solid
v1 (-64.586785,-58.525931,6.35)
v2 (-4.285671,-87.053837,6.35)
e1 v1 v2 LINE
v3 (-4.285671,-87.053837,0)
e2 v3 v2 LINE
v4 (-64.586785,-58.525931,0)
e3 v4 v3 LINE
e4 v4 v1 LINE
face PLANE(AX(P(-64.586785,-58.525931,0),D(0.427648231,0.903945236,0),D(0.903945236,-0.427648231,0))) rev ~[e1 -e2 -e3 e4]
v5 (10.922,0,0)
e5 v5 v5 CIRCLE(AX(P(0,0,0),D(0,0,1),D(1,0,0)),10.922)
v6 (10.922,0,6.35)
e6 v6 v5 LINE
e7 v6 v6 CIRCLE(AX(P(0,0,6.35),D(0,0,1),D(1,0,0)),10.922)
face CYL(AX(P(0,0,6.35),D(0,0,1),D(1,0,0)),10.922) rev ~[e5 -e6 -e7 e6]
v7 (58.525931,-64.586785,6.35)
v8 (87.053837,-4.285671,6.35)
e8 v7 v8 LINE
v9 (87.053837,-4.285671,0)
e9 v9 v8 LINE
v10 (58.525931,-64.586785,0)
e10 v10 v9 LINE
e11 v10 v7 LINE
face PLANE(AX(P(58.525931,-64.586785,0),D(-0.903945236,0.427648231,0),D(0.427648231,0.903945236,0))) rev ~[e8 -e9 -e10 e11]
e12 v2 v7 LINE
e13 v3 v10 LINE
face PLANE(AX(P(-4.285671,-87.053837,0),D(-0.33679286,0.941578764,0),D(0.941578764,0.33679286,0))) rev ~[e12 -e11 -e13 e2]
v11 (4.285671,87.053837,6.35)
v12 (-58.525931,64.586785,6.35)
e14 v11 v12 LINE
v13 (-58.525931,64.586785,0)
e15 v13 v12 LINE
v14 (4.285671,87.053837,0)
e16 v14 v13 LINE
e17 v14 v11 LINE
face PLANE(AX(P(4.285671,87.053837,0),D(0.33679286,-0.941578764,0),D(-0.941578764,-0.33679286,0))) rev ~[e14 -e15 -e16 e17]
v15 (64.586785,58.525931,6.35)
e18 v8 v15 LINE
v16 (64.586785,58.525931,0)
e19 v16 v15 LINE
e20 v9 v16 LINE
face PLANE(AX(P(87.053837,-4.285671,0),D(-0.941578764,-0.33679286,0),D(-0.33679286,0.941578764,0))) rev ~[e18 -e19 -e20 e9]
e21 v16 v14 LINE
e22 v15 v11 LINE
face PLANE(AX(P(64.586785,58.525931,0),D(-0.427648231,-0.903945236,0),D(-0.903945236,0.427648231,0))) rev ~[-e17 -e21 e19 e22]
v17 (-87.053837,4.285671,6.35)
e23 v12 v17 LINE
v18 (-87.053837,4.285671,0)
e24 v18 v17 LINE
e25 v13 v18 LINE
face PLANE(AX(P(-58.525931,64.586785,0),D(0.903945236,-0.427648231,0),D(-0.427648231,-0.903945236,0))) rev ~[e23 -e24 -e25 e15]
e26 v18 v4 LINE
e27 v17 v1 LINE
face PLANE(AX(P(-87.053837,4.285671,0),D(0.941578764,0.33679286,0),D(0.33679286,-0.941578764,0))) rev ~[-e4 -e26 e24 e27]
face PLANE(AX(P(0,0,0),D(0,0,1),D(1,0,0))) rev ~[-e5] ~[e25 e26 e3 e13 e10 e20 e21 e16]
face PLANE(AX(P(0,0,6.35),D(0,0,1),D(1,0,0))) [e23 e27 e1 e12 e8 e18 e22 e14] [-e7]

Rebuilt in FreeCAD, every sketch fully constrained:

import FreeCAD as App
import Part
import Sketcher
from FreeCAD import Vector
Q = App.Units.Quantity


def add_polygon(sketch, points):
    """Adds a closed chain of lines whose ends are joined by coincident constraints."""
    first, n = sketch.GeometryCount, len(points)
    for a, b in zip(points, points[1:] + points[:1]):
        sketch.addGeometry(Part.LineSegment(App.Vector(*a, 0), App.Vector(*b, 0)), False)
    for i in range(n):
        sketch.addConstraint(Sketcher.Constraint("Coincident", first + i, 2, first + (i + 1) % n, 1))

doc = App.newDocument("Part")
body = doc.addObject("PartDesign::Body", "Body")

# Sketch on XY plane
sketch1 = body.newObject("Sketcher::SketchObject", "Sketch")
sketch1.AttachmentSupport = (doc.getObject("XY_Plane"), [""])
sketch1.MapMode = "FlatFace"
add_polygon(sketch1, [(-59, 65), (-87, 4), (-65, -59), (-4, -87), (59, -65), (87, -4), (65, 59), (4, 87)])  # lines 0-7
sketch1.addConstraint([
    Sketcher.Constraint("Symmetric", 0, 2, 4, 2, -1, 1),
    Sketcher.Constraint("Symmetric", 1, 2, 5, 2, -1, 1),
    Sketcher.Constraint("Symmetric", 2, 2, 6, 2, -1, 1),
    Sketcher.Constraint("Symmetric", 3, 2, 7, 2, -1, 1),
    Sketcher.Constraint("Perpendicular", 0, 2),
    Sketcher.Constraint("Perpendicular", 1, 3),
    Sketcher.Constraint("Equal", 0, 1),
    Sketcher.Constraint("Equal", 1, 2),
    Sketcher.Constraint("Equal", 2, 3),
    Sketcher.Constraint("DistanceY", -1, 1, 0, 2, Q("4.285671 mm")),
    Sketcher.Constraint("DistanceY", 1, 2, -1, 1, Q("58.525931 mm")),
    Sketcher.Constraint("DistanceX", 0, 2, 1, 2, Q("22.467052 mm")),
])
pad1 = body.newObject("PartDesign::Pad", "Pad")
pad1.Profile = sketch1
pad1.Length = Q("0.25 in")

# Sketch on XY plane
sketch2 = body.newObject("Sketcher::SketchObject", "Sketch001")
sketch2.AttachmentSupport = (doc.getObject("XY_Plane"), [""])
sketch2.MapMode = "FlatFace"
sketch2.AttachmentOffset = App.Placement(Vector(0, 0, 0.25 * 25.4), App.Rotation())
sketch2.addGeometry(Part.Circle(Vector(0, 0, 0), Vector(0, 0, 1), 11), False)
sketch2.addConstraint([
    Sketcher.Constraint("Coincident", 0, 3, -1, 1),
    Sketcher.Constraint("Diameter", 0, Q("0.86 in")),
])
pocket1 = body.newObject("PartDesign::Pocket", "Pocket")
pocket1.Profile = sketch2
pocket1.Length = Q("1 in")

doc.recompute()
